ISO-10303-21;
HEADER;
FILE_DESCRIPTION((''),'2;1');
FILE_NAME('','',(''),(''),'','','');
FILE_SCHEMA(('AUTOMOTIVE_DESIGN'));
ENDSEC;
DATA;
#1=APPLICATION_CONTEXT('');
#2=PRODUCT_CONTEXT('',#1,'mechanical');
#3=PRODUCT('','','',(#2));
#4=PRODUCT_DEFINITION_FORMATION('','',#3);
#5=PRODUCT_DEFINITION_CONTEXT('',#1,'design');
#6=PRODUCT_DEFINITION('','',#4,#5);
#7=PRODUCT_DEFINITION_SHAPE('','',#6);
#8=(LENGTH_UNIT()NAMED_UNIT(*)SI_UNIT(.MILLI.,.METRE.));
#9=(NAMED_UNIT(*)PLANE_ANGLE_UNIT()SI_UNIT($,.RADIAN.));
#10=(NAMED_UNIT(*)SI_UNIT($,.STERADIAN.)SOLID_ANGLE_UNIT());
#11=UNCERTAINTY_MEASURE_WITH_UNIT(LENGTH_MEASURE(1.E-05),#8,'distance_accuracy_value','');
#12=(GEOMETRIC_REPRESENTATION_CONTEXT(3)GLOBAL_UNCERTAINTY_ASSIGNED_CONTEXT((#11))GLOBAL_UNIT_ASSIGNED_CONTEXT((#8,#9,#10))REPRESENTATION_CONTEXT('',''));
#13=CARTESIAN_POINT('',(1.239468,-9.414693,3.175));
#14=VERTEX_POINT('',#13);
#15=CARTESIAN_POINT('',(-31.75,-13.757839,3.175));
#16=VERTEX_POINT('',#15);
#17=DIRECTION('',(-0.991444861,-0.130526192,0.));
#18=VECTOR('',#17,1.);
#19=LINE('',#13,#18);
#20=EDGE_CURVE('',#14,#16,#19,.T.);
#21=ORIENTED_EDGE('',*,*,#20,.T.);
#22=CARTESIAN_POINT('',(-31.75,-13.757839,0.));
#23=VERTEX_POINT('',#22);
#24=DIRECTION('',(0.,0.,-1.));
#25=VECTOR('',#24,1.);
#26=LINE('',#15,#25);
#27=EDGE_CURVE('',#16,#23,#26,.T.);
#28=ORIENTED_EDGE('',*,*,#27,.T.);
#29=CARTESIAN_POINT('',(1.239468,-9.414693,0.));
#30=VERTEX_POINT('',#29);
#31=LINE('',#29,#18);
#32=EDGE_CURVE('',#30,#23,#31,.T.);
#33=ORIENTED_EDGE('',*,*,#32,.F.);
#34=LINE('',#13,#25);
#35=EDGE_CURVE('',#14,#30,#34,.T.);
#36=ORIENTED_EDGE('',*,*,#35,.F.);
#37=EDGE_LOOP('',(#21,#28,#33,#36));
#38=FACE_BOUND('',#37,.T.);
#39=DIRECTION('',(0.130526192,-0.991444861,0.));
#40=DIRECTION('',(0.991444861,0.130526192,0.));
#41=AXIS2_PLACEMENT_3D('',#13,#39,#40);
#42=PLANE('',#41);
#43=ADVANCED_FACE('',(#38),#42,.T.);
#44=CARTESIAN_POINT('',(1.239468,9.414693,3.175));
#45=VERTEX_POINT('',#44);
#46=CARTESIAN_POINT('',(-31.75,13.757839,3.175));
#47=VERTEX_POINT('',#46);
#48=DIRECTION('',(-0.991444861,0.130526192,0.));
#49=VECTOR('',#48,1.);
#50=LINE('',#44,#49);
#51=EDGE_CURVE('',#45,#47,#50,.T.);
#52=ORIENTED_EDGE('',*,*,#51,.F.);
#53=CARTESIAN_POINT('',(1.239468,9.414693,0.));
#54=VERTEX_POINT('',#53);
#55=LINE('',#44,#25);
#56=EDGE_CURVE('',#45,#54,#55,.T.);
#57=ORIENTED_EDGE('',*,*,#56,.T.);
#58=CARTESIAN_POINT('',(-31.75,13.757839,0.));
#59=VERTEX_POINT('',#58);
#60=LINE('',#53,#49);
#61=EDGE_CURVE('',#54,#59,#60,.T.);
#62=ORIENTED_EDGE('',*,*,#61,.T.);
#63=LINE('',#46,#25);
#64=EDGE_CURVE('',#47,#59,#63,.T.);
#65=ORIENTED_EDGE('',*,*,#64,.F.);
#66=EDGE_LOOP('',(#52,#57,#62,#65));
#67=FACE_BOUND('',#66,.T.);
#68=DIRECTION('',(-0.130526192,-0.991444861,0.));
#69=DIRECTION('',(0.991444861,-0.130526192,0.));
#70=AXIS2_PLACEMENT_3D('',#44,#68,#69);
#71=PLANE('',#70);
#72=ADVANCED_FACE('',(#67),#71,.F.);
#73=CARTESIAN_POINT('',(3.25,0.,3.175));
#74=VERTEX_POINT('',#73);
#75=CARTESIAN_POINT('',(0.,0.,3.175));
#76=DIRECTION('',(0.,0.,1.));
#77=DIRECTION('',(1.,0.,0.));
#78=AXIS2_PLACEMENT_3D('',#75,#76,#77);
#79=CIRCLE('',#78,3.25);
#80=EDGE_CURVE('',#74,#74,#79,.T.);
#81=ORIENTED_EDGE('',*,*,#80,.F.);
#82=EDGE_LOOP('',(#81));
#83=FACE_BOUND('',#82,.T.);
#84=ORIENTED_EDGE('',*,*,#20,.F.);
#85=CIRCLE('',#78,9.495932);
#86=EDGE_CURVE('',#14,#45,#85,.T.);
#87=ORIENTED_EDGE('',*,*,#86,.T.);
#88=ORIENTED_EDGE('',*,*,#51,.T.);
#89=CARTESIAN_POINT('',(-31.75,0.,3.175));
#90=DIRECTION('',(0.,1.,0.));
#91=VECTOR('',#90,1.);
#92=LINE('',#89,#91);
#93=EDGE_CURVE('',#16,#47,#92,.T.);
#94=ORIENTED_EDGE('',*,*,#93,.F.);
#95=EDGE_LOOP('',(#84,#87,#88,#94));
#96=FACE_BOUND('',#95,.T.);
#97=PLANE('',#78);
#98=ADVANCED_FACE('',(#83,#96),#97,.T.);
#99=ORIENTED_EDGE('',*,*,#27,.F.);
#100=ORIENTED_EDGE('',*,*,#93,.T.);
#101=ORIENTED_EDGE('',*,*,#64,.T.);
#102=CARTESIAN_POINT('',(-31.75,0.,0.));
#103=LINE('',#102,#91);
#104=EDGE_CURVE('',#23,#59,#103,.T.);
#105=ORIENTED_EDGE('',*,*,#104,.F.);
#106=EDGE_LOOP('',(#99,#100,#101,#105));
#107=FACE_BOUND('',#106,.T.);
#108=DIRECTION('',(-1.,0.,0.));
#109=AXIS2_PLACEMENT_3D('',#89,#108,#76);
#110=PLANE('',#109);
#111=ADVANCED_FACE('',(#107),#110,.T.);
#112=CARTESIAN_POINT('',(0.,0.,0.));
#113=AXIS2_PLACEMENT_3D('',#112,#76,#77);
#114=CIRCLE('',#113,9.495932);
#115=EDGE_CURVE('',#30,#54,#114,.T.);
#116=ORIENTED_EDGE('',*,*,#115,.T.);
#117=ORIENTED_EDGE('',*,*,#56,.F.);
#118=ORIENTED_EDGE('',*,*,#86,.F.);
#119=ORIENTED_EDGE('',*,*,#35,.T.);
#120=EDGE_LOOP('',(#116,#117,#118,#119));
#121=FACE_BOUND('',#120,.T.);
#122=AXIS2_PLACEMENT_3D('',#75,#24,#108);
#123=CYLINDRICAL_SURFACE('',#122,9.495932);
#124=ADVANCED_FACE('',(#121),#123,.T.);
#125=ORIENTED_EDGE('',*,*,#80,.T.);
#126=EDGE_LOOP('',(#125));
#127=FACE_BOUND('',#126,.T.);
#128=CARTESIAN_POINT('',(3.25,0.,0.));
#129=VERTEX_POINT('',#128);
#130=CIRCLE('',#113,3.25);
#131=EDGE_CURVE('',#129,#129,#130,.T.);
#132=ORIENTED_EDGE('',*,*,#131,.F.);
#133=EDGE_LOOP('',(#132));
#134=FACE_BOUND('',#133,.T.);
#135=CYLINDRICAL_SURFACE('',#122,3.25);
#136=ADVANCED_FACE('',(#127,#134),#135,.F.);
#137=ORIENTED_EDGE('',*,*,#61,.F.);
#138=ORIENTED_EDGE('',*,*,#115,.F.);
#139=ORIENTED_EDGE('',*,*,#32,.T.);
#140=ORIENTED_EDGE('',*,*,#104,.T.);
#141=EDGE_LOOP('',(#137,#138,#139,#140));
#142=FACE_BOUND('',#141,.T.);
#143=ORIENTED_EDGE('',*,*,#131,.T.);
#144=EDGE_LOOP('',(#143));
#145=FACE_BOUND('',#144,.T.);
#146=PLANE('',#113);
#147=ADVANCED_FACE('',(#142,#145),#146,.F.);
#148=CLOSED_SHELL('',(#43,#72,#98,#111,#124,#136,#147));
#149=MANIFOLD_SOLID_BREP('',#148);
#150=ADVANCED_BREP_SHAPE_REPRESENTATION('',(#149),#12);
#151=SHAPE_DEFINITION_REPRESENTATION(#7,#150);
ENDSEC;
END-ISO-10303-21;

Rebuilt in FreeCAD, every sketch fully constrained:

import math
import FreeCAD as App
import Part
import Sketcher
Q = App.Units.Quantity

doc = App.newDocument("Part")
body = doc.addObject("PartDesign::Body", "Body")

sketch1 = body.newObject("Sketcher::SketchObject", "Sketch")
sketch1.AttachmentSupport = (doc.getObject("XY_Plane"), [""])
sketch1.MapMode = "FlatFace"
sketch1.addGeometry(Part.LineSegment(App.Vector(-31.75, -13.757839, 0), App.Vector(1.239468, -9.414693, 0)), False)
sketch1.addGeometry(Part.ArcOfCircle(Part.Circle(App.Vector(0, 0, 0), App.Vector(0, 0, 1), 9.495932), math.radians(-82.5), math.radians(82.5)), False)
sketch1.addGeometry(Part.LineSegment(App.Vector(1.239468, 9.414693, 0), App.Vector(-31.75, 13.757839, 0)), False)
sketch1.addGeometry(Part.LineSegment(App.Vector(-31.75, 13.757839, 0), App.Vector(-31.75, -13.757839, 0)), False)
sketch1.addGeometry(Part.Circle(App.Vector(0, 0, 0), App.Vector(0, 0, 1), 3.25), False)
sketch1.addConstraint(Sketcher.Constraint("Tangent", 0, 2, 1, 1))
sketch1.addConstraint(Sketcher.Constraint("Tangent", 1, 2, 2, 1))
sketch1.addConstraint(Sketcher.Constraint("Coincident", 2, 2, 3, 1))
sketch1.addConstraint(Sketcher.Constraint("Coincident", 3, 2, 0, 1))
sketch1.addConstraint(Sketcher.Constraint("Vertical", 3))
sketch1.addConstraint(Sketcher.Constraint("Coincident", 1, 3, -1, 1))
sketch1.addConstraint(Sketcher.Constraint("Coincident", 4, 3, -1, 1))
sketch1.addConstraint(Sketcher.Constraint("Vertical", 0, 2, 1, 2))
sketch1.addConstraint(Sketcher.Constraint("Diameter", 4, 6.5))
sketch1.addConstraint(Sketcher.Constraint("Angle", 0, Q("7.5 deg")))
sketch1.addConstraint(Sketcher.Constraint("DistanceX", 2, 2, -1, 1, 31.75))
sketch1.addConstraint(Sketcher.Constraint("Radius", 1, 9.495932))
pad1 = body.newObject("PartDesign::Pad", "Pad")
pad1.Profile = sketch1
pad1.Length = 3.175

doc.recompute()
